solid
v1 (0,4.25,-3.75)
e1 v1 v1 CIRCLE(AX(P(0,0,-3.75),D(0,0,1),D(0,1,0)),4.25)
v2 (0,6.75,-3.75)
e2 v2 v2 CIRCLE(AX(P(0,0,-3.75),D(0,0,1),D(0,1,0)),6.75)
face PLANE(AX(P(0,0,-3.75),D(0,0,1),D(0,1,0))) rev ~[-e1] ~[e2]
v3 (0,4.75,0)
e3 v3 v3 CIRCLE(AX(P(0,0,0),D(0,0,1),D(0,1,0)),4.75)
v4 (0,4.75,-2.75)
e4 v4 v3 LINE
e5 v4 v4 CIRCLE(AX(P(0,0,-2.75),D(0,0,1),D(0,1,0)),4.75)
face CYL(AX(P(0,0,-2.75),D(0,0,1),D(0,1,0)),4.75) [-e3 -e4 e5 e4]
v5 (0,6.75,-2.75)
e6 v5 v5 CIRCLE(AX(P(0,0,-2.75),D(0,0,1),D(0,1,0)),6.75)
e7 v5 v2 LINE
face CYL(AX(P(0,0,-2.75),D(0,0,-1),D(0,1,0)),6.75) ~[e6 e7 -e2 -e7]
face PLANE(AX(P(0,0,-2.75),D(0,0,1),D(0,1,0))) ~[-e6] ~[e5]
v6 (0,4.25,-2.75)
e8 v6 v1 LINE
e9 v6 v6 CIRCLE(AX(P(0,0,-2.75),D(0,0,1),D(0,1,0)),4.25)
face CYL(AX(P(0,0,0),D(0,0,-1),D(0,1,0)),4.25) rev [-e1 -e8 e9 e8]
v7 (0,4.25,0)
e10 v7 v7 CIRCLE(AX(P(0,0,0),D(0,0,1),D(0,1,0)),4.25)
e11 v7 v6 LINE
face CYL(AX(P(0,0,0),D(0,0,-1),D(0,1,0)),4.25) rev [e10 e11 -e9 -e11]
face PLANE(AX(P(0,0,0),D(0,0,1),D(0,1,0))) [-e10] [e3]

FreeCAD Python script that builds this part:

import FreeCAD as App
import Part
import Sketcher

V = App.Vector

doc = App.newDocument("Part")
body = doc.addObject("PartDesign::Body", "Body")

# Sketch on YZ plane
sketch1 = body.newObject("Sketcher::SketchObject", "Sketch")
sketch1.AttachmentSupport = (doc.getObject("YZ_Plane"), [""])
sketch1.MapMode = "FlatFace"
sketch1.addGeometry([
    Part.LineSegment(V(4.8, 0, 0), V(4.2, 0, 0)),  # 0
    Part.LineSegment(V(4.2, 0, 0), V(4.2, -3.8, 0)),  # 1
    Part.LineSegment(V(4.2, -3.8, 0), V(6.8, -3.8, 0)),  # 2
    Part.LineSegment(V(6.8, -3.8, 0), V(6.8, -2.8, 0)),  # 3
    Part.LineSegment(V(6.8, -2.8, 0), V(4.8, -2.8, 0)),  # 4
    Part.LineSegment(V(4.8, -2.8, 0), V(4.8, 0, 0)),  # 5
], False)
sketch1.addConstraint([
    Sketcher.Constraint("Coincident", 0, 2, 1, 1),
    Sketcher.Constraint("Coincident", 1, 2, 2, 1),
    Sketcher.Constraint("Coincident", 2, 2, 3, 1),
    Sketcher.Constraint("Coincident", 3, 2, 4, 1),
    Sketcher.Constraint("Coincident", 4, 2, 5, 1),
    Sketcher.Constraint("Coincident", 5, 2, 0, 1),
    Sketcher.Constraint("Horizontal", 0),
    Sketcher.Constraint("Vertical", 1),
    Sketcher.Constraint("Horizontal", 2),
    Sketcher.Constraint("Vertical", 3),
    Sketcher.Constraint("Horizontal", 4),
    Sketcher.Constraint("Vertical", 5),
    Sketcher.Constraint("PointOnObject", 0, 2, -1),
    Sketcher.Constraint("DistanceY", 3, 1, 3, 2, 1.0),
    Sketcher.Constraint("DistanceX", 2, 1, 2, 2, 2.5),
    Sketcher.Constraint("DistanceY", 5, 1, 5, 2, 2.75),
    Sketcher.Constraint("DistanceX", 4, 2, 4, 1, 2.0),
    Sketcher.Constraint("DistanceX", -1, 1, 0, 2, 4.25),
])
revolution = body.newObject("PartDesign::Revolution", "Revolution")
revolution.Profile = sketch1
revolution.ReferenceAxis = (sketch1, ["V_Axis"])
revolution.Angle = 360

doc.recompute()
